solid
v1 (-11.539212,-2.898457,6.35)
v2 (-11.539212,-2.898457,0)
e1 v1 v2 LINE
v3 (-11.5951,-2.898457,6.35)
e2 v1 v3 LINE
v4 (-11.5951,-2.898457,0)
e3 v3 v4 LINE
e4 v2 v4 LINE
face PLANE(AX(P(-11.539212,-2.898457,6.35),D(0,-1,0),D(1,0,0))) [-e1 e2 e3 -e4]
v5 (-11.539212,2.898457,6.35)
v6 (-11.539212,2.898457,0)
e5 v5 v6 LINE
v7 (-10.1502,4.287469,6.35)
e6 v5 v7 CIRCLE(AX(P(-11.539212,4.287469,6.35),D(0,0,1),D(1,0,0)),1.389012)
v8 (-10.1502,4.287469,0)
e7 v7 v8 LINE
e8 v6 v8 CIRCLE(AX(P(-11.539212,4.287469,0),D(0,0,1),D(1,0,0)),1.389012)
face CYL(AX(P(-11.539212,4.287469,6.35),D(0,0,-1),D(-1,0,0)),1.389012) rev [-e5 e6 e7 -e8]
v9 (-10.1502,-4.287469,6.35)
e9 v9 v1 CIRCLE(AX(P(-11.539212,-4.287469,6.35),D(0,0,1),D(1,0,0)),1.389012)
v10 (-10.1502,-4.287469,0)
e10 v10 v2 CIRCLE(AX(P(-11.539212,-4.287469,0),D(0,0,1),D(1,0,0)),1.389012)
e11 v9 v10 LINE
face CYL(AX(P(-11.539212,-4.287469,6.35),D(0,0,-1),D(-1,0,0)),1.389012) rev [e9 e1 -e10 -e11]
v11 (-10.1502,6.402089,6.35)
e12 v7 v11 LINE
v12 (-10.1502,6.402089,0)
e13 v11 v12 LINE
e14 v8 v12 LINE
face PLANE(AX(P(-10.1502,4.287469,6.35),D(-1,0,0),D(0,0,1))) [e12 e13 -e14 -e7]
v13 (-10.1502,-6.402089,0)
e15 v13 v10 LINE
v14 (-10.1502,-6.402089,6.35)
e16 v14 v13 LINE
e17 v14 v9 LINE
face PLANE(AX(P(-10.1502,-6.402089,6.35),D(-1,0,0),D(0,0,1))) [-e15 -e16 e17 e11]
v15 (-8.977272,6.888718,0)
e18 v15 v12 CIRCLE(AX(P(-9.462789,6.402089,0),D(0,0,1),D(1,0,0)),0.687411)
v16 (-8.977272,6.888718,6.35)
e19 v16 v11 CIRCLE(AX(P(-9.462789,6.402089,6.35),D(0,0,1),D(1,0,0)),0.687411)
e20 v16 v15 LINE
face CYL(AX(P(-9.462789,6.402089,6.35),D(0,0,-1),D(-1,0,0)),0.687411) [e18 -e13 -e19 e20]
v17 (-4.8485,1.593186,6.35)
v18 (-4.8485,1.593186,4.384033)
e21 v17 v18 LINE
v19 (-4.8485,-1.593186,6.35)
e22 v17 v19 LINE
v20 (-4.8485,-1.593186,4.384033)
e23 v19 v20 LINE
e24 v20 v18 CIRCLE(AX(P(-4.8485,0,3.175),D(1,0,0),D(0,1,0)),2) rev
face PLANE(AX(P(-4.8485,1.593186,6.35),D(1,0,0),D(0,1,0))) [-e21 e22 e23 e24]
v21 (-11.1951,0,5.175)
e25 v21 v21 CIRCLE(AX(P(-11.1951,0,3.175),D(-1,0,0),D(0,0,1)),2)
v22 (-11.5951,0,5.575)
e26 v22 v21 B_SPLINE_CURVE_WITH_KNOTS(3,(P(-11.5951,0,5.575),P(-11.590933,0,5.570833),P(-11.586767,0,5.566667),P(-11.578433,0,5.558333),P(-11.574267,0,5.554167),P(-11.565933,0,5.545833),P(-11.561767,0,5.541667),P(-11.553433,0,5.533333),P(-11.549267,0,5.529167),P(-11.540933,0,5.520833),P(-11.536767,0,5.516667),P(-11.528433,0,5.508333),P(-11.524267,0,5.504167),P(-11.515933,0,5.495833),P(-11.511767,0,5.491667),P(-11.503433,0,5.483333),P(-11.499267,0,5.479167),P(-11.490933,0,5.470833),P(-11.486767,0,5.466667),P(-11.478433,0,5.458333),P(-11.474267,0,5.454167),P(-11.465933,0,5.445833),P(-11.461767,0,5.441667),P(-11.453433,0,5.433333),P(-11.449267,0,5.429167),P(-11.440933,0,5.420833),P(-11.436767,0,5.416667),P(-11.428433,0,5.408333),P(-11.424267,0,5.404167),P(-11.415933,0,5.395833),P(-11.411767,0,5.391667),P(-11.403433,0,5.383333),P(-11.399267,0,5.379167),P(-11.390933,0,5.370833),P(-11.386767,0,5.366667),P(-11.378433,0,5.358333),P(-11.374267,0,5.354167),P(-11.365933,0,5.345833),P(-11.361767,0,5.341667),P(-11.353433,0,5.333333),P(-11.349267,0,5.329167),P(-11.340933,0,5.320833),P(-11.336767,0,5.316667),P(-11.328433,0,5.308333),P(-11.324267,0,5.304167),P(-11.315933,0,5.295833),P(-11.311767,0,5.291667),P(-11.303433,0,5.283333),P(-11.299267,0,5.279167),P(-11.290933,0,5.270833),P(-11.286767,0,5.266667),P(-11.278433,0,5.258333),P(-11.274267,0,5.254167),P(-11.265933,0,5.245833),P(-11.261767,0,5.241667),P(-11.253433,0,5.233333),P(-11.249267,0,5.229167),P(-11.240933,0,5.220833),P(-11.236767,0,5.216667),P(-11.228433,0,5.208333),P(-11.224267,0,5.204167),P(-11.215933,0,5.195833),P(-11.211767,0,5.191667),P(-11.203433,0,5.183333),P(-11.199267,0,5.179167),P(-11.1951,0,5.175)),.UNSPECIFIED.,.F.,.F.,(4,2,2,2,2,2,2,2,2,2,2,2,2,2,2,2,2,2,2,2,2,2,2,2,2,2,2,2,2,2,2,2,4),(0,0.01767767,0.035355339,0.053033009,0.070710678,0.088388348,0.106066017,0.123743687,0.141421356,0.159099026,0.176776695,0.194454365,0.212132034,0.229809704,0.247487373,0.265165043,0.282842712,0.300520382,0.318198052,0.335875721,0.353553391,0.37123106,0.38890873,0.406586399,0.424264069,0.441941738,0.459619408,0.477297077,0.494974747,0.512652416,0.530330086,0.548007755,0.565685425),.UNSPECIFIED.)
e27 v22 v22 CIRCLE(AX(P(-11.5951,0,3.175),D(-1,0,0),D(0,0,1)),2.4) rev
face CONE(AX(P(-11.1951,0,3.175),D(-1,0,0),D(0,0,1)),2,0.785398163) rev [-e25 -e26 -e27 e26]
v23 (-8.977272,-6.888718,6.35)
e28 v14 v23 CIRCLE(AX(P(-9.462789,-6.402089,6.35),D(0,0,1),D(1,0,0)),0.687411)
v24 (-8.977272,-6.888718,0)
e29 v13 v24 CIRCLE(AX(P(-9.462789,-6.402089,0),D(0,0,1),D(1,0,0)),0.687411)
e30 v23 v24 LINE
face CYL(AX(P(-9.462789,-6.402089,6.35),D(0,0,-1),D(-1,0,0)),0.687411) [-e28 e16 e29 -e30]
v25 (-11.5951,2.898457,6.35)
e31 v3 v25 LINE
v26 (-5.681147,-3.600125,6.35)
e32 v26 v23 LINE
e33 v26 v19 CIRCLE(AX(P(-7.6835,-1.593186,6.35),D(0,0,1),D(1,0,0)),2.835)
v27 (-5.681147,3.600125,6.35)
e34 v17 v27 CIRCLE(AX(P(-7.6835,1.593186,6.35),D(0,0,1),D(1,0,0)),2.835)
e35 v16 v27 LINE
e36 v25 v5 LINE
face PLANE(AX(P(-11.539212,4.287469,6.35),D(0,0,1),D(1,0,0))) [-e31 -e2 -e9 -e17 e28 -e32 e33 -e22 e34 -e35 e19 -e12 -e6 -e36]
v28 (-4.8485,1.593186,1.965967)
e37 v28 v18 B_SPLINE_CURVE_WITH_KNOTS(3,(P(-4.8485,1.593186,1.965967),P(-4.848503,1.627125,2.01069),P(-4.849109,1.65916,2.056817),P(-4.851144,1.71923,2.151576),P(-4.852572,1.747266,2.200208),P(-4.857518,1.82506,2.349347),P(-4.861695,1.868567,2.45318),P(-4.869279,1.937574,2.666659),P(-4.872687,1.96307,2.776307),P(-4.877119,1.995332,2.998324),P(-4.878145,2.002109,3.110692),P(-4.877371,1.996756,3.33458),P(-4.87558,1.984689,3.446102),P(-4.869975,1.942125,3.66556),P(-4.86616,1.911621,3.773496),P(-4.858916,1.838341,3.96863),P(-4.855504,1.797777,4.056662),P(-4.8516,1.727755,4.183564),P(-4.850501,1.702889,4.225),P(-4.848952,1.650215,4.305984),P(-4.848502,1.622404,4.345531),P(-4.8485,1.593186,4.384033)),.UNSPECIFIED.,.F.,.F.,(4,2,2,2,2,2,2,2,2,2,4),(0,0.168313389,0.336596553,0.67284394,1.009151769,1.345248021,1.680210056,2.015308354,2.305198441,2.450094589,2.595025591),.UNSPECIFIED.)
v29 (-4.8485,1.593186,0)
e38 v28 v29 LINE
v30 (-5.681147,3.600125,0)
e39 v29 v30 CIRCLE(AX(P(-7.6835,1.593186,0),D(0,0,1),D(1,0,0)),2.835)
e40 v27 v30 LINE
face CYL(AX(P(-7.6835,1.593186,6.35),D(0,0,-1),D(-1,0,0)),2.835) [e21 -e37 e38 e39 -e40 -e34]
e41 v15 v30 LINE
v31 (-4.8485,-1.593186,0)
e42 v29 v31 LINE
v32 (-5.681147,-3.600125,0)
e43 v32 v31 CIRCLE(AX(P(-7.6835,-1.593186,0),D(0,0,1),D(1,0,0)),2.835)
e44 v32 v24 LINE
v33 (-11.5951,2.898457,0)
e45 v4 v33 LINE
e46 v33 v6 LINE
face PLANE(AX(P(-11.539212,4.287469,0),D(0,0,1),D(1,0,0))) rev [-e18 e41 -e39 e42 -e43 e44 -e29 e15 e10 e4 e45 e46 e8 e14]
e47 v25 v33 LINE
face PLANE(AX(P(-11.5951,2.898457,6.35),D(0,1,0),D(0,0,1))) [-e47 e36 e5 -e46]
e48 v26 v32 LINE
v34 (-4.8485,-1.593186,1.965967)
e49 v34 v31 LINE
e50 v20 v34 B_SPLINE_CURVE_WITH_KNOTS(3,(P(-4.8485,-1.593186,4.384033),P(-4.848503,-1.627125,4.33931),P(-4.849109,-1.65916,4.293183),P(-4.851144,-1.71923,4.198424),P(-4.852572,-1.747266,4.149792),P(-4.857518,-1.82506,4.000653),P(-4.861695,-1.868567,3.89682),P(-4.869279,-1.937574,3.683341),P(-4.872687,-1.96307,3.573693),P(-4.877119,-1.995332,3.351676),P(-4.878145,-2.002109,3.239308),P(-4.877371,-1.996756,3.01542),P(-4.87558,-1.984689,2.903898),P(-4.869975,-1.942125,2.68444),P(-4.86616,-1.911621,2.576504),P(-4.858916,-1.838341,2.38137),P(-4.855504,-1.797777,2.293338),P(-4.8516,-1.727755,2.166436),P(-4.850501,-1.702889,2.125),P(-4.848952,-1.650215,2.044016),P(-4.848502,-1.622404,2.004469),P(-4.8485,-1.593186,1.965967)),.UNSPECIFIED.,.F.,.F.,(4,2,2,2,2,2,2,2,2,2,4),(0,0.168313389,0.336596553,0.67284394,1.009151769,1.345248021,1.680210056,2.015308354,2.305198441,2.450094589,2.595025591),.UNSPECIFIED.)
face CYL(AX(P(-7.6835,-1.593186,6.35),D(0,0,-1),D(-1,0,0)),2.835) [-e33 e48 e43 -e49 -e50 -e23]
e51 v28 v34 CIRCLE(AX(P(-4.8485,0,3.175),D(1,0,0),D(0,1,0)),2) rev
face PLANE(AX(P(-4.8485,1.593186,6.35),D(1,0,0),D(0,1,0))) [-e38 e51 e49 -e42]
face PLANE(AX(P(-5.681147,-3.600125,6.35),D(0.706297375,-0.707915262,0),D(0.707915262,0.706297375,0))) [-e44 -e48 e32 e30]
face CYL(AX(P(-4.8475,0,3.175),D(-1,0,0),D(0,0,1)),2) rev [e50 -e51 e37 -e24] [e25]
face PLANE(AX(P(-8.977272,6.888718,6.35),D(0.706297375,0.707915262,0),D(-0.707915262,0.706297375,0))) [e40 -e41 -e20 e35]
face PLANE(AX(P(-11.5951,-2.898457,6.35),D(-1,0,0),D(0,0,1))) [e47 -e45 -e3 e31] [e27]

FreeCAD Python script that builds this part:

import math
import FreeCAD as App
import Part
import Sketcher
Q = App.Units.Quantity


def edges_at(feature, points):
    """Names of the edges that pass closest to the given points."""
    edges = feature.Shape.Edges
    near = lambda p: min(range(len(edges)), key=lambda i: edges[i].distToShape(Part.Vertex(*p))[0])
    return sorted({f"Edge{near(p) + 1}" for p in points})

doc = App.newDocument("Part")
body = doc.addObject("PartDesign::Body", "Body")

# Sketch on XY plane
sketch1 = body.newObject("Sketcher::SketchObject", "Sketch")
sketch1.AttachmentSupport = (doc.getObject("XY_Plane"), [""])
sketch1.MapMode = "FlatFace"
sketch1.addGeometry([
    Part.LineSegment(App.Vector(-11.6, 2.9, 0), App.Vector(-11.6, -2.9, 0)),  # 0
    Part.LineSegment(App.Vector(-11.6, -2.9, 0), App.Vector(-11.54, -2.9, 0)),  # 1
    Part.ArcOfCircle(Part.Circle(App.Vector(-11.54, -4.29, 0), App.Vector(0, 0, 1), 1.39), math.radians(0), math.radians(90)),  # 2
    Part.LineSegment(App.Vector(-10.15, -4.29, 0), App.Vector(-10.15, -6.4, 0)),  # 3
    Part.ArcOfCircle(Part.Circle(App.Vector(-9.46, -6.4, 0), App.Vector(0, 0, 1), 0.69), math.radians(180), math.radians(315)),  # 4
    Part.LineSegment(App.Vector(-8.98, -6.89, 0), App.Vector(-5.68, -3.6, 0)),  # 5
    Part.ArcOfCircle(Part.Circle(App.Vector(-7.68, -1.59, 0), App.Vector(0, 0, 1), 2.83), math.radians(-45), math.radians(0)),  # 6
    Part.LineSegment(App.Vector(-4.85, -1.59, 0), App.Vector(-4.85, 1.59, 0)),  # 7
    Part.ArcOfCircle(Part.Circle(App.Vector(-7.68, 1.59, 0), App.Vector(0, 0, 1), 2.83), math.radians(0), math.radians(45)),  # 8
    Part.LineSegment(App.Vector(-5.68, 3.6, 0), App.Vector(-8.98, 6.89, 0)),  # 9
    Part.ArcOfCircle(Part.Circle(App.Vector(-9.46, 6.4, 0), App.Vector(0, 0, 1), 0.69), math.radians(45), math.radians(180)),  # 10
    Part.LineSegment(App.Vector(-10.15, 6.4, 0), App.Vector(-10.15, 4.29, 0)),  # 11
    Part.ArcOfCircle(Part.Circle(App.Vector(-11.54, 4.29, 0), App.Vector(0, 0, 1), 1.39), math.radians(-90), math.radians(0)),  # 12
    Part.LineSegment(App.Vector(-11.54, 2.9, 0), App.Vector(-11.6, 2.9, 0)),  # 13
], False)
sketch1.addConstraint([
    Sketcher.Constraint("Coincident", 0, 2, 1, 1),
    Sketcher.Constraint("Tangent", 1, 2, 2, 2),
    Sketcher.Constraint("Tangent", 2, 1, 3, 1),
    Sketcher.Constraint("Tangent", 3, 2, 4, 1),
    Sketcher.Constraint("Tangent", 4, 2, 5, 1),
    Sketcher.Constraint("Tangent", 5, 2, 6, 1),
    Sketcher.Constraint("Tangent", 6, 2, 7, 1),
    Sketcher.Constraint("Tangent", 7, 2, 8, 1),
    Sketcher.Constraint("Tangent", 8, 2, 9, 1),
    Sketcher.Constraint("Tangent", 9, 2, 10, 1),
    Sketcher.Constraint("Tangent", 10, 2, 11, 1),
    Sketcher.Constraint("Tangent", 11, 2, 12, 2),
    Sketcher.Constraint("Tangent", 12, 1, 13, 1),
    Sketcher.Constraint("Coincident", 13, 2, 0, 1),
    Sketcher.Constraint("Vertical", 0),
    Sketcher.Constraint("Horizontal", 1),
    Sketcher.Constraint("Vertical", 3),
    Sketcher.Constraint("Vertical", 7),
    Sketcher.Constraint("Vertical", 11),
    Sketcher.Constraint("Horizontal", 13),
    Sketcher.Constraint("Equal", 6, 8),
    Sketcher.Constraint("Equal", 4, 10),
    Sketcher.Constraint("Equal", 2, 12),
    Sketcher.Constraint("Symmetric", 4, 3, 10, 3, -1),
    Sketcher.Constraint("Vertical", 5, 2, 8, 2),
    Sketcher.Constraint("Equal", 3, 11),
    Sketcher.Constraint("Radius", 6, Q("2.835 mm")),
    Sketcher.Constraint("Radius", 4, Q("0.687411 mm")),
    Sketcher.Constraint("Radius", 2, Q("1.389012 mm")),
    Sketcher.Constraint("Distance", 5, Q("4.656102 mm")),
    Sketcher.Constraint("DistanceY", 3, 2, 3, 1, Q("2.11462 mm")),
    Sketcher.Constraint("DistanceY", 7, 1, 7, 2, Q("3.186371 mm")),
    Sketcher.Constraint("DistanceX", 6, 3, -1, 1, Q("7.6835 mm")),
    Sketcher.Constraint("DistanceX", 0, 2, -1, 1, Q("11.5951 mm")),
    Sketcher.Constraint("DistanceX", 2, 1, -1, 1, Q("10.1502 mm")),
])
pad1 = body.newObject("PartDesign::Pad", "Pad")
pad1.Profile = sketch1
pad1.Length = 6.35

# Sketch on YZ plane
sketch2 = body.newObject("Sketcher::SketchObject", "Sketch001")
sketch2.AttachmentSupport = (doc.getObject("YZ_Plane"), [""])
sketch2.MapMode = "FlatFace"
sketch2.AttachmentOffset = App.Placement(App.Vector(0, 0, -11.5951), App.Rotation())
sketch2.addGeometry(Part.Circle(App.Vector(0, 3.2, 0), App.Vector(0, 0, 1), 2), False)
sketch2.addConstraint([
    Sketcher.Constraint("PointOnObject", 0, 3, -2),
    Sketcher.Constraint("Diameter", 0, Q("4 mm")),
    Sketcher.Constraint("DistanceY", -1, 1, 0, 3, Q("3.175 mm")),
])
pocket1 = body.newObject("PartDesign::Pocket", "Pocket")
pocket1.Profile = sketch2
pocket1.Type = "UpToFirst"
pocket1.Reversed = True
doc.recompute()

chamfer = body.newObject("PartDesign::Chamfer", "Chamfer")
chamfer.Base = (pocket1, edges_at(pocket1, [(-11.595, 0, 1.175)]))
chamfer.Size = 0.4

doc.recompute()
